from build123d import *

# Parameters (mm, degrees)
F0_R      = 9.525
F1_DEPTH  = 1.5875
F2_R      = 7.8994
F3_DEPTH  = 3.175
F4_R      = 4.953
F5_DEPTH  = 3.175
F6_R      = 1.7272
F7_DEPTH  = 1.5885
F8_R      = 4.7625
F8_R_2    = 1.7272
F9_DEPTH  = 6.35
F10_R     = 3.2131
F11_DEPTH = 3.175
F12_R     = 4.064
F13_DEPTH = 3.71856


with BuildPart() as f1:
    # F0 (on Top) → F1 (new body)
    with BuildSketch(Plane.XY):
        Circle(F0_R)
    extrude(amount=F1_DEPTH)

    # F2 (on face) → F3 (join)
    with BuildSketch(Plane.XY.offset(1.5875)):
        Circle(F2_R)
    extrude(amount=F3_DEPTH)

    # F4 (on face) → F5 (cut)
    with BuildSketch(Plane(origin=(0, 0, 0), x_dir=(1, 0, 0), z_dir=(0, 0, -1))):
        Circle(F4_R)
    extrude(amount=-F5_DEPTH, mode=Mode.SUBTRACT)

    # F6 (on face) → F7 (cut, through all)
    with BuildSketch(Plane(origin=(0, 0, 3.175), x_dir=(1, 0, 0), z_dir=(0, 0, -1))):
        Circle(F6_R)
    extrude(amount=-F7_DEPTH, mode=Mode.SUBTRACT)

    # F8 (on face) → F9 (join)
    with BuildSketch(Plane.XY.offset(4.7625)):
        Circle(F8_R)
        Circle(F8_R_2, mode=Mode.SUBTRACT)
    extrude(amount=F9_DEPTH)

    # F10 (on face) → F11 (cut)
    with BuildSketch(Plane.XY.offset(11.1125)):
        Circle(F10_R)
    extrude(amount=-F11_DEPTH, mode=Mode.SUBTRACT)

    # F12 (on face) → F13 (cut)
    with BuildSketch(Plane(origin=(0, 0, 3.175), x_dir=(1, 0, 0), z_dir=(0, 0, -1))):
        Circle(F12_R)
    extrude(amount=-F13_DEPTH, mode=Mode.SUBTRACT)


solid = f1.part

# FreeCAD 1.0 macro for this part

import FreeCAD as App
import Part
import Sketcher

V = App.Vector
Q = App.Units.Quantity

doc = App.newDocument("Part")
params = doc.addObject("Spreadsheet::Sheet", "Params")
for row, (alias, value) in enumerate([
    ("sketch1_diameter", "0.75 in"),
    ("pad1_length", "0.0625 in"),
    ("sketch2_diameter", "0.622 in"),
    ("pad2_length", "0.125 in"),
    ("sketch3_diameter", "0.39 in"),
    ("pocket1_length", "0.125 in"),
    ("sketch4_diameter", "0.136 in"),
    ("sketch5_diameter", "0.375 in"),
    ("sketch5_diameter2", "0.136 in"),
    ("pad3_length", "0.25 in"),
    ("sketch6_diameter", "0.253 in"),
    ("pocket3_length", "0.125 in"),
    ("sketch7_diameter", "0.32 in"),
    ("pocket4_length", "0.1464 in"),
], start=1):
    params.set(f"A{row}", alias)
    params.set(f"B{row}", "=" + value)
    params.setAlias(f"B{row}", alias)

body = doc.addObject("PartDesign::Body", "Body")

sketch1 = body.newObject("Sketcher::SketchObject", "Sketch")
sketch1.AttachmentSupport = (doc.getObject("XY_Plane"), [""])
sketch1.MapMode = "FlatFace"
sketch1.addGeometry(Part.Circle(V(0, 0, 0), V(0, 0, 1), 10), False)
sketch1.addConstraint([
    Sketcher.Constraint("Coincident", 0, 3, -1, 1),
    Sketcher.Constraint("Diameter", 0, Q("0.75 in")),
])
sketch1.setExpression("Constraints[1]", "Params.sketch1_diameter")
pad1 = body.newObject("PartDesign::Pad", "Pad")
pad1.Profile = sketch1
pad1.setExpression("Length", "Params.pad1_length")

sketch2 = body.newObject("Sketcher::SketchObject", "Sketch001")
sketch2.AttachmentSupport = (doc.getObject("XY_Plane"), [""])
sketch2.MapMode = "FlatFace"
sketch2.AttachmentOffset = App.Placement(V(0, 0, 0.0625 * 25.4), App.Rotation())
sketch2.addGeometry(Part.Circle(V(0, 0, 0), V(0, 0, 1), 8), False)
sketch2.addConstraint([
    Sketcher.Constraint("Coincident", 0, 3, -1, 1),
    Sketcher.Constraint("Diameter", 0, Q("0.622 in")),
])
sketch2.setExpression("Constraints[1]", "Params.sketch2_diameter")
pad2 = body.newObject("PartDesign::Pad", "Pad001")
pad2.Profile = sketch2
pad2.setExpression("Length", "Params.pad2_length")

sketch3 = body.newObject("Sketcher::SketchObject", "Sketch002")
sketch3.AttachmentSupport = (doc.getObject("XY_Plane"), [""])
sketch3.MapMode = "FlatFace"
sketch3.addGeometry(Part.Circle(V(0, 0, 0), V(0, 0, 1), 5), False)
sketch3.addConstraint([
    Sketcher.Constraint("Coincident", 0, 3, -1, 1),
    Sketcher.Constraint("Diameter", 0, Q("0.39 in")),
])
sketch3.setExpression("Constraints[1]", "Params.sketch3_diameter")
pocket1 = body.newObject("PartDesign::Pocket", "Pocket")
pocket1.Profile = sketch3
pocket1.setExpression("Length", "Params.pocket1_length")
pocket1.Reversed = True

sketch4 = body.newObject("Sketcher::SketchObject", "Sketch003")
sketch4.AttachmentSupport = (doc.getObject("XY_Plane"), [""])
sketch4.MapMode = "FlatFace"
sketch4.AttachmentOffset = App.Placement(V(0, 0, 0.125 * 25.4), App.Rotation())
sketch4.addGeometry(Part.Circle(V(0, 0, 0), V(0, 0, 1), 1.7), False)
sketch4.addConstraint([
    Sketcher.Constraint("Coincident", 0, 3, -1, 1),
    Sketcher.Constraint("Diameter", 0, Q("0.136 in")),
])
sketch4.setExpression("Constraints[1]", "Params.sketch4_diameter")
pocket2 = body.newObject("PartDesign::Pocket", "Pocket001")
pocket2.Profile = sketch4
pocket2.Type = "ThroughAll"
pocket2.Reversed = True

sketch5 = body.newObject("Sketcher::SketchObject", "Sketch004")
sketch5.AttachmentSupport = (doc.getObject("XY_Plane"), [""])
sketch5.MapMode = "FlatFace"
sketch5.AttachmentOffset = App.Placement(V(0, 0, 0.1875 * 25.4), App.Rotation())
sketch5.addGeometry([
    Part.Circle(V(0, 0, 0), V(0, 0, 1), 4.8),
    Part.Circle(V(0, 0, 0), V(0, 0, 1), 1.7),
], False)
sketch5.addConstraint([
    Sketcher.Constraint("Coincident", 0, 3, -1, 1),
    Sketcher.Constraint("Coincident", 1, 3, -1, 1),
    Sketcher.Constraint("Diameter", 0, Q("0.375 in")),
    Sketcher.Constraint("Diameter", 1, Q("0.136 in")),
])
sketch5.setExpression("Constraints[2]", "Params.sketch5_diameter")
sketch5.setExpression("Constraints[3]", "Params.sketch5_diameter2")
pad3 = body.newObject("PartDesign::Pad", "Pad002")
pad3.Profile = sketch5
pad3.setExpression("Length", "Params.pad3_length")

sketch6 = body.newObject("Sketcher::SketchObject", "Sketch005")
sketch6.AttachmentSupport = (doc.getObject("XY_Plane"), [""])
sketch6.MapMode = "FlatFace"
sketch6.AttachmentOffset = App.Placement(V(0, 0, 0.4375 * 25.4), App.Rotation())
sketch6.addGeometry(Part.Circle(V(0, 0, 0), V(0, 0, 1), 3.2), False)
sketch6.addConstraint([
    Sketcher.Constraint("Coincident", 0, 3, -1, 1),
    Sketcher.Constraint("Diameter", 0, Q("0.253 in")),
])
sketch6.setExpression("Constraints[1]", "Params.sketch6_diameter")
pocket3 = body.newObject("PartDesign::Pocket", "Pocket002")
pocket3.Profile = sketch6
pocket3.setExpression("Length", "Params.pocket3_length")

sketch7 = body.newObject("Sketcher::SketchObject", "Sketch006")
sketch7.AttachmentSupport = (doc.getObject("XY_Plane"), [""])
sketch7.MapMode = "FlatFace"
sketch7.AttachmentOffset = App.Placement(V(0, 0, 0.125 * 25.4), App.Rotation())
sketch7.addGeometry(Part.Circle(V(0, 0, 0), V(0, 0, 1), 4.1), False)
sketch7.addConstraint([
    Sketcher.Constraint("Coincident", 0, 3, -1, 1),
    Sketcher.Constraint("Diameter", 0, Q("0.32 in")),
])
sketch7.setExpression("Constraints[1]", "Params.sketch7_diameter")
pocket4 = body.newObject("PartDesign::Pocket", "Pocket003")
pocket4.Profile = sketch7
pocket4.setExpression("Length", "Params.pocket4_length")
pocket4.Reversed = True

doc.recompute()
